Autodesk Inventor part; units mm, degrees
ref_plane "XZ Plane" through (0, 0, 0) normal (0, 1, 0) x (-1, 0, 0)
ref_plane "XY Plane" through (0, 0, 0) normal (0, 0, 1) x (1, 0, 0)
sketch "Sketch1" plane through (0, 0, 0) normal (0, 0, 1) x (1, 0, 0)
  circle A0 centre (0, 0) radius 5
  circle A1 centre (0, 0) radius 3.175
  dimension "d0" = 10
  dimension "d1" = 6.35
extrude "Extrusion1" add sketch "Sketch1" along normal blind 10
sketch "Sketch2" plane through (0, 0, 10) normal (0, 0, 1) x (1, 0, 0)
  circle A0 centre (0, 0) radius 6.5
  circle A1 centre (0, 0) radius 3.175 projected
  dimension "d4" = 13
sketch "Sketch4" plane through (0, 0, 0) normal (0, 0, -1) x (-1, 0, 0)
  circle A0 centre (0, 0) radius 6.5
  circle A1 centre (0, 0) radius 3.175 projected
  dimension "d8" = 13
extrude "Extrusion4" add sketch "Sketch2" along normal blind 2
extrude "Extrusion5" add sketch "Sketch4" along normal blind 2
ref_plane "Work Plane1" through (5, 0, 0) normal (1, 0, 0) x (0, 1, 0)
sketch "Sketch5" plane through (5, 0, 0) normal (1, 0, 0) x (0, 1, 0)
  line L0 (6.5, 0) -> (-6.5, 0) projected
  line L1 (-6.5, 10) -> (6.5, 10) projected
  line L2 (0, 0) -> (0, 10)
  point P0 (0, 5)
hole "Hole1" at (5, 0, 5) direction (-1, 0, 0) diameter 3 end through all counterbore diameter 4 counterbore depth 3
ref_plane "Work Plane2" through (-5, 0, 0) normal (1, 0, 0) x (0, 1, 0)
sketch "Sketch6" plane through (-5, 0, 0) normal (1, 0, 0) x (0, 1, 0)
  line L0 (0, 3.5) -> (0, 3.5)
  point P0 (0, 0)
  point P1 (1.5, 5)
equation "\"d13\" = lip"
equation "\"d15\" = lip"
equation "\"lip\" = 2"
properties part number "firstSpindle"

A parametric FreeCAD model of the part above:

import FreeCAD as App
import Part
import Sketcher

doc = App.newDocument("Part")
body = doc.addObject("PartDesign::Body", "Body")

# Sketch on XY plane
sketch1 = doc.addObject("Sketcher::SketchObject", "Sketch")
body.addObject(sketch1)
sketch1.AttachmentSupport = (doc.XY_Plane, [""])
sketch1.MapMode = "FlatFace"
sketch1.addGeometry(Part.Circle(App.Vector(0, 0, 0), App.Vector(0, 0, 1), 5), False)
sketch1.addGeometry(Part.Circle(App.Vector(0, 0, 0), App.Vector(0, 0, 1), 3.175), False)
sketch1.addConstraint(Sketcher.Constraint("Coincident", 0, 3, -1, 1))
sketch1.addConstraint(Sketcher.Constraint("Coincident", 1, 3, -1, 1))
sketch1.addConstraint(Sketcher.Constraint("Diameter", 0, 10.0))
sketch1.addConstraint(Sketcher.Constraint("Diameter", 1, 6.35))
pad1 = doc.addObject("PartDesign::Pad", "Pad")
body.addObject(pad1)
pad1.Profile = sketch1
pad1.Length = 10

# Sketch on XY plane
sketch2 = doc.addObject("Sketcher::SketchObject", "Sketch001")
body.addObject(sketch2)
sketch2.AttachmentSupport = (doc.XY_Plane, [""])
sketch2.MapMode = "FlatFace"
sketch2.AttachmentOffset = App.Placement(App.Vector(0, 0, 10), App.Rotation())
sketch2.addGeometry(Part.Circle(App.Vector(0, 0, 0), App.Vector(0, 0, 1), 6.5), False)
sketch2.addGeometry(Part.Circle(App.Vector(0, 0, 0), App.Vector(0, 0, 1), 3.175), False)
sketch2.addConstraint(Sketcher.Constraint("Coincident", 0, 3, -1, 1))
sketch2.addConstraint(Sketcher.Constraint("Coincident", 1, 3, -1, 1))
sketch2.addConstraint(Sketcher.Constraint("Diameter", 0, 13.0))
sketch2.addConstraint(Sketcher.Constraint("Diameter", 1, 6.35))
pad2 = doc.addObject("PartDesign::Pad", "Pad001")
body.addObject(pad2)
pad2.Profile = sketch2
pad2.Length = 2

# Sketch on XY plane
sketch3 = doc.addObject("Sketcher::SketchObject", "Sketch002")
body.addObject(sketch3)
sketch3.AttachmentSupport = (doc.XY_Plane, [""])
sketch3.MapMode = "FlatFace"
sketch3.addGeometry(Part.Circle(App.Vector(0, 0, 0), App.Vector(0, 0, 1), 6.5), False)
sketch3.addGeometry(Part.Circle(App.Vector(0, 0, 0), App.Vector(0, 0, 1), 3.175), False)
sketch3.addConstraint(Sketcher.Constraint("Coincident", 0, 3, -1, 1))
sketch3.addConstraint(Sketcher.Constraint("Coincident", 1, 3, -1, 1))
sketch3.addConstraint(Sketcher.Constraint("Diameter", 0, 13.0))
sketch3.addConstraint(Sketcher.Constraint("Diameter", 1, 6.35))
pad3 = doc.addObject("PartDesign::Pad", "Pad002")
body.addObject(pad3)
pad3.Profile = sketch3
pad3.Length = 2
pad3.Reversed = True

# Sketch on YZ plane
sketch4 = doc.addObject("Sketcher::SketchObject", "Sketch003")
body.addObject(sketch4)
sketch4.AttachmentSupport = (doc.YZ_Plane, [""])
sketch4.MapMode = "FlatFace"
sketch4.AttachmentOffset = App.Placement(App.Vector(0, 0, 5), App.Rotation())
sketch4.addGeometry(Part.Circle(App.Vector(0, 5, 0), App.Vector(0, 0, 1), 1.5), False)
sketch4.addConstraint(Sketcher.Constraint("PointOnObject", 0, 3, -2))
sketch4.addConstraint(Sketcher.Constraint("Diameter", 0, 3.0))
sketch4.addConstraint(Sketcher.Constraint("DistanceY", -1, 1, 0, 3, 5.0))
doc.recompute()
hole = doc.addObject("PartDesign::Hole", "Hole")
body.addObject(hole)
hole.Profile = sketch4
hole.ThreadType = "None"
hole.Diameter = 3
hole.DepthType = "ThroughAll"
hole.HoleCutType = "Counterbore"
hole.HoleCutDiameter = 4
hole.HoleCutDepth = 3

doc.recompute()
